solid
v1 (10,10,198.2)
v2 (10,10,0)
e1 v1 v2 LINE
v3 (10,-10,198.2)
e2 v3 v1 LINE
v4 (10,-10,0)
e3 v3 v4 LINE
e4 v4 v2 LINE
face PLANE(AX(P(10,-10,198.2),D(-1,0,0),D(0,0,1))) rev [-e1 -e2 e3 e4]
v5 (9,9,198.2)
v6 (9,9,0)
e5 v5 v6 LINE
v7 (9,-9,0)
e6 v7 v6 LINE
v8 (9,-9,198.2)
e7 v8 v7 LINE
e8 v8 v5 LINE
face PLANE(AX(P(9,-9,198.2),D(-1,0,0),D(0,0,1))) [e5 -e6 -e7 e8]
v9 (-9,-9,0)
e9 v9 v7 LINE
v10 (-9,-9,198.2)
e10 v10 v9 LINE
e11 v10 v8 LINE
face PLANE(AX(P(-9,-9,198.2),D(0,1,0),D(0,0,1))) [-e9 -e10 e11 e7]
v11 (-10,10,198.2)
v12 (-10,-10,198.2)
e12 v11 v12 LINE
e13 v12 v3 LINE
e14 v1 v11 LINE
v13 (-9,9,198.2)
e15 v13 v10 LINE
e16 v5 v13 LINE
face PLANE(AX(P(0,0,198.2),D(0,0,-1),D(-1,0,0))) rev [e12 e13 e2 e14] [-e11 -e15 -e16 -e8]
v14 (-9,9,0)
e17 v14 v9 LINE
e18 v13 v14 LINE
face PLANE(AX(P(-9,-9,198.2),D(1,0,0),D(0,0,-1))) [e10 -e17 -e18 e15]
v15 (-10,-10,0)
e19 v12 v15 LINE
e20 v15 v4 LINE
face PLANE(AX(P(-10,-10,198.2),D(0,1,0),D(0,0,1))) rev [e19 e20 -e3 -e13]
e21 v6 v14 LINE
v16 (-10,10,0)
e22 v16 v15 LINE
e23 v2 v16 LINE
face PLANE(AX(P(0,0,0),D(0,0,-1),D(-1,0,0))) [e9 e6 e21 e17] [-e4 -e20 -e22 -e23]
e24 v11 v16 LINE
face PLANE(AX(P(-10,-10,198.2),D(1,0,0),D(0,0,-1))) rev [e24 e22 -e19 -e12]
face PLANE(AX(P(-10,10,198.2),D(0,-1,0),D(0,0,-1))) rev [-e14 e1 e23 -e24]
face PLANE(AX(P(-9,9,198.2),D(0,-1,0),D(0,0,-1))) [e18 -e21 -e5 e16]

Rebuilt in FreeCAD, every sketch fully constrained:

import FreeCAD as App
import Part
import Sketcher

doc = App.newDocument("Part")
body = doc.addObject("PartDesign::Body", "Body")

# Sketch on XY plane
sketch1 = body.newObject("Sketcher::SketchObject", "Sketch")
sketch1.AttachmentSupport = (doc.getObject("XY_Plane"), [""])
sketch1.MapMode = "FlatFace"
sketch1.addGeometry([
    Part.LineSegment(App.Vector(-10, 10, 0), App.Vector(-10, -10, 0)),  # 0
    Part.LineSegment(App.Vector(-10, -10, 0), App.Vector(10, -10, 0)),  # 1
    Part.LineSegment(App.Vector(10, -10, 0), App.Vector(10, 10, 0)),  # 2
    Part.LineSegment(App.Vector(10, 10, 0), App.Vector(-10, 10, 0)),  # 3
    Part.LineSegment(App.Vector(9, -9, 0), App.Vector(-9, -9, 0)),  # 4
    Part.LineSegment(App.Vector(-9, -9, 0), App.Vector(-9, 9, 0)),  # 5
    Part.LineSegment(App.Vector(-9, 9, 0), App.Vector(9, 9, 0)),  # 6
    Part.LineSegment(App.Vector(9, 9, 0), App.Vector(9, -9, 0)),  # 7
], False)
sketch1.addConstraint([
    Sketcher.Constraint("Coincident", 0, 2, 1, 1),
    Sketcher.Constraint("Coincident", 1, 2, 2, 1),
    Sketcher.Constraint("Coincident", 2, 2, 3, 1),
    Sketcher.Constraint("Coincident", 3, 2, 0, 1),
    Sketcher.Constraint("Coincident", 4, 2, 5, 1),
    Sketcher.Constraint("Coincident", 5, 2, 6, 1),
    Sketcher.Constraint("Coincident", 6, 2, 7, 1),
    Sketcher.Constraint("Coincident", 7, 2, 4, 1),
    Sketcher.Constraint("Vertical", 0),
    Sketcher.Constraint("Horizontal", 1),
    Sketcher.Constraint("Vertical", 2),
    Sketcher.Constraint("Horizontal", 3),
    Sketcher.Constraint("Horizontal", 4),
    Sketcher.Constraint("Vertical", 5),
    Sketcher.Constraint("Horizontal", 6),
    Sketcher.Constraint("Vertical", 7),
    Sketcher.Constraint("Symmetric", 0, 2, 2, 2, -1, 1),
    Sketcher.Constraint("Symmetric", 4, 2, 6, 2, -1, 1),
    Sketcher.Constraint("Equal", 3, 0),
    Sketcher.Constraint("Equal", 6, 5),
    Sketcher.Constraint("DistanceX", 1, 1, 1, 2, 20.0),
    Sketcher.Constraint("DistanceX", 4, 2, 4, 1, 18.0),
])
pad1 = body.newObject("PartDesign::Pad", "Pad")
pad1.Profile = sketch1
pad1.Length = 198.2

doc.recompute()
